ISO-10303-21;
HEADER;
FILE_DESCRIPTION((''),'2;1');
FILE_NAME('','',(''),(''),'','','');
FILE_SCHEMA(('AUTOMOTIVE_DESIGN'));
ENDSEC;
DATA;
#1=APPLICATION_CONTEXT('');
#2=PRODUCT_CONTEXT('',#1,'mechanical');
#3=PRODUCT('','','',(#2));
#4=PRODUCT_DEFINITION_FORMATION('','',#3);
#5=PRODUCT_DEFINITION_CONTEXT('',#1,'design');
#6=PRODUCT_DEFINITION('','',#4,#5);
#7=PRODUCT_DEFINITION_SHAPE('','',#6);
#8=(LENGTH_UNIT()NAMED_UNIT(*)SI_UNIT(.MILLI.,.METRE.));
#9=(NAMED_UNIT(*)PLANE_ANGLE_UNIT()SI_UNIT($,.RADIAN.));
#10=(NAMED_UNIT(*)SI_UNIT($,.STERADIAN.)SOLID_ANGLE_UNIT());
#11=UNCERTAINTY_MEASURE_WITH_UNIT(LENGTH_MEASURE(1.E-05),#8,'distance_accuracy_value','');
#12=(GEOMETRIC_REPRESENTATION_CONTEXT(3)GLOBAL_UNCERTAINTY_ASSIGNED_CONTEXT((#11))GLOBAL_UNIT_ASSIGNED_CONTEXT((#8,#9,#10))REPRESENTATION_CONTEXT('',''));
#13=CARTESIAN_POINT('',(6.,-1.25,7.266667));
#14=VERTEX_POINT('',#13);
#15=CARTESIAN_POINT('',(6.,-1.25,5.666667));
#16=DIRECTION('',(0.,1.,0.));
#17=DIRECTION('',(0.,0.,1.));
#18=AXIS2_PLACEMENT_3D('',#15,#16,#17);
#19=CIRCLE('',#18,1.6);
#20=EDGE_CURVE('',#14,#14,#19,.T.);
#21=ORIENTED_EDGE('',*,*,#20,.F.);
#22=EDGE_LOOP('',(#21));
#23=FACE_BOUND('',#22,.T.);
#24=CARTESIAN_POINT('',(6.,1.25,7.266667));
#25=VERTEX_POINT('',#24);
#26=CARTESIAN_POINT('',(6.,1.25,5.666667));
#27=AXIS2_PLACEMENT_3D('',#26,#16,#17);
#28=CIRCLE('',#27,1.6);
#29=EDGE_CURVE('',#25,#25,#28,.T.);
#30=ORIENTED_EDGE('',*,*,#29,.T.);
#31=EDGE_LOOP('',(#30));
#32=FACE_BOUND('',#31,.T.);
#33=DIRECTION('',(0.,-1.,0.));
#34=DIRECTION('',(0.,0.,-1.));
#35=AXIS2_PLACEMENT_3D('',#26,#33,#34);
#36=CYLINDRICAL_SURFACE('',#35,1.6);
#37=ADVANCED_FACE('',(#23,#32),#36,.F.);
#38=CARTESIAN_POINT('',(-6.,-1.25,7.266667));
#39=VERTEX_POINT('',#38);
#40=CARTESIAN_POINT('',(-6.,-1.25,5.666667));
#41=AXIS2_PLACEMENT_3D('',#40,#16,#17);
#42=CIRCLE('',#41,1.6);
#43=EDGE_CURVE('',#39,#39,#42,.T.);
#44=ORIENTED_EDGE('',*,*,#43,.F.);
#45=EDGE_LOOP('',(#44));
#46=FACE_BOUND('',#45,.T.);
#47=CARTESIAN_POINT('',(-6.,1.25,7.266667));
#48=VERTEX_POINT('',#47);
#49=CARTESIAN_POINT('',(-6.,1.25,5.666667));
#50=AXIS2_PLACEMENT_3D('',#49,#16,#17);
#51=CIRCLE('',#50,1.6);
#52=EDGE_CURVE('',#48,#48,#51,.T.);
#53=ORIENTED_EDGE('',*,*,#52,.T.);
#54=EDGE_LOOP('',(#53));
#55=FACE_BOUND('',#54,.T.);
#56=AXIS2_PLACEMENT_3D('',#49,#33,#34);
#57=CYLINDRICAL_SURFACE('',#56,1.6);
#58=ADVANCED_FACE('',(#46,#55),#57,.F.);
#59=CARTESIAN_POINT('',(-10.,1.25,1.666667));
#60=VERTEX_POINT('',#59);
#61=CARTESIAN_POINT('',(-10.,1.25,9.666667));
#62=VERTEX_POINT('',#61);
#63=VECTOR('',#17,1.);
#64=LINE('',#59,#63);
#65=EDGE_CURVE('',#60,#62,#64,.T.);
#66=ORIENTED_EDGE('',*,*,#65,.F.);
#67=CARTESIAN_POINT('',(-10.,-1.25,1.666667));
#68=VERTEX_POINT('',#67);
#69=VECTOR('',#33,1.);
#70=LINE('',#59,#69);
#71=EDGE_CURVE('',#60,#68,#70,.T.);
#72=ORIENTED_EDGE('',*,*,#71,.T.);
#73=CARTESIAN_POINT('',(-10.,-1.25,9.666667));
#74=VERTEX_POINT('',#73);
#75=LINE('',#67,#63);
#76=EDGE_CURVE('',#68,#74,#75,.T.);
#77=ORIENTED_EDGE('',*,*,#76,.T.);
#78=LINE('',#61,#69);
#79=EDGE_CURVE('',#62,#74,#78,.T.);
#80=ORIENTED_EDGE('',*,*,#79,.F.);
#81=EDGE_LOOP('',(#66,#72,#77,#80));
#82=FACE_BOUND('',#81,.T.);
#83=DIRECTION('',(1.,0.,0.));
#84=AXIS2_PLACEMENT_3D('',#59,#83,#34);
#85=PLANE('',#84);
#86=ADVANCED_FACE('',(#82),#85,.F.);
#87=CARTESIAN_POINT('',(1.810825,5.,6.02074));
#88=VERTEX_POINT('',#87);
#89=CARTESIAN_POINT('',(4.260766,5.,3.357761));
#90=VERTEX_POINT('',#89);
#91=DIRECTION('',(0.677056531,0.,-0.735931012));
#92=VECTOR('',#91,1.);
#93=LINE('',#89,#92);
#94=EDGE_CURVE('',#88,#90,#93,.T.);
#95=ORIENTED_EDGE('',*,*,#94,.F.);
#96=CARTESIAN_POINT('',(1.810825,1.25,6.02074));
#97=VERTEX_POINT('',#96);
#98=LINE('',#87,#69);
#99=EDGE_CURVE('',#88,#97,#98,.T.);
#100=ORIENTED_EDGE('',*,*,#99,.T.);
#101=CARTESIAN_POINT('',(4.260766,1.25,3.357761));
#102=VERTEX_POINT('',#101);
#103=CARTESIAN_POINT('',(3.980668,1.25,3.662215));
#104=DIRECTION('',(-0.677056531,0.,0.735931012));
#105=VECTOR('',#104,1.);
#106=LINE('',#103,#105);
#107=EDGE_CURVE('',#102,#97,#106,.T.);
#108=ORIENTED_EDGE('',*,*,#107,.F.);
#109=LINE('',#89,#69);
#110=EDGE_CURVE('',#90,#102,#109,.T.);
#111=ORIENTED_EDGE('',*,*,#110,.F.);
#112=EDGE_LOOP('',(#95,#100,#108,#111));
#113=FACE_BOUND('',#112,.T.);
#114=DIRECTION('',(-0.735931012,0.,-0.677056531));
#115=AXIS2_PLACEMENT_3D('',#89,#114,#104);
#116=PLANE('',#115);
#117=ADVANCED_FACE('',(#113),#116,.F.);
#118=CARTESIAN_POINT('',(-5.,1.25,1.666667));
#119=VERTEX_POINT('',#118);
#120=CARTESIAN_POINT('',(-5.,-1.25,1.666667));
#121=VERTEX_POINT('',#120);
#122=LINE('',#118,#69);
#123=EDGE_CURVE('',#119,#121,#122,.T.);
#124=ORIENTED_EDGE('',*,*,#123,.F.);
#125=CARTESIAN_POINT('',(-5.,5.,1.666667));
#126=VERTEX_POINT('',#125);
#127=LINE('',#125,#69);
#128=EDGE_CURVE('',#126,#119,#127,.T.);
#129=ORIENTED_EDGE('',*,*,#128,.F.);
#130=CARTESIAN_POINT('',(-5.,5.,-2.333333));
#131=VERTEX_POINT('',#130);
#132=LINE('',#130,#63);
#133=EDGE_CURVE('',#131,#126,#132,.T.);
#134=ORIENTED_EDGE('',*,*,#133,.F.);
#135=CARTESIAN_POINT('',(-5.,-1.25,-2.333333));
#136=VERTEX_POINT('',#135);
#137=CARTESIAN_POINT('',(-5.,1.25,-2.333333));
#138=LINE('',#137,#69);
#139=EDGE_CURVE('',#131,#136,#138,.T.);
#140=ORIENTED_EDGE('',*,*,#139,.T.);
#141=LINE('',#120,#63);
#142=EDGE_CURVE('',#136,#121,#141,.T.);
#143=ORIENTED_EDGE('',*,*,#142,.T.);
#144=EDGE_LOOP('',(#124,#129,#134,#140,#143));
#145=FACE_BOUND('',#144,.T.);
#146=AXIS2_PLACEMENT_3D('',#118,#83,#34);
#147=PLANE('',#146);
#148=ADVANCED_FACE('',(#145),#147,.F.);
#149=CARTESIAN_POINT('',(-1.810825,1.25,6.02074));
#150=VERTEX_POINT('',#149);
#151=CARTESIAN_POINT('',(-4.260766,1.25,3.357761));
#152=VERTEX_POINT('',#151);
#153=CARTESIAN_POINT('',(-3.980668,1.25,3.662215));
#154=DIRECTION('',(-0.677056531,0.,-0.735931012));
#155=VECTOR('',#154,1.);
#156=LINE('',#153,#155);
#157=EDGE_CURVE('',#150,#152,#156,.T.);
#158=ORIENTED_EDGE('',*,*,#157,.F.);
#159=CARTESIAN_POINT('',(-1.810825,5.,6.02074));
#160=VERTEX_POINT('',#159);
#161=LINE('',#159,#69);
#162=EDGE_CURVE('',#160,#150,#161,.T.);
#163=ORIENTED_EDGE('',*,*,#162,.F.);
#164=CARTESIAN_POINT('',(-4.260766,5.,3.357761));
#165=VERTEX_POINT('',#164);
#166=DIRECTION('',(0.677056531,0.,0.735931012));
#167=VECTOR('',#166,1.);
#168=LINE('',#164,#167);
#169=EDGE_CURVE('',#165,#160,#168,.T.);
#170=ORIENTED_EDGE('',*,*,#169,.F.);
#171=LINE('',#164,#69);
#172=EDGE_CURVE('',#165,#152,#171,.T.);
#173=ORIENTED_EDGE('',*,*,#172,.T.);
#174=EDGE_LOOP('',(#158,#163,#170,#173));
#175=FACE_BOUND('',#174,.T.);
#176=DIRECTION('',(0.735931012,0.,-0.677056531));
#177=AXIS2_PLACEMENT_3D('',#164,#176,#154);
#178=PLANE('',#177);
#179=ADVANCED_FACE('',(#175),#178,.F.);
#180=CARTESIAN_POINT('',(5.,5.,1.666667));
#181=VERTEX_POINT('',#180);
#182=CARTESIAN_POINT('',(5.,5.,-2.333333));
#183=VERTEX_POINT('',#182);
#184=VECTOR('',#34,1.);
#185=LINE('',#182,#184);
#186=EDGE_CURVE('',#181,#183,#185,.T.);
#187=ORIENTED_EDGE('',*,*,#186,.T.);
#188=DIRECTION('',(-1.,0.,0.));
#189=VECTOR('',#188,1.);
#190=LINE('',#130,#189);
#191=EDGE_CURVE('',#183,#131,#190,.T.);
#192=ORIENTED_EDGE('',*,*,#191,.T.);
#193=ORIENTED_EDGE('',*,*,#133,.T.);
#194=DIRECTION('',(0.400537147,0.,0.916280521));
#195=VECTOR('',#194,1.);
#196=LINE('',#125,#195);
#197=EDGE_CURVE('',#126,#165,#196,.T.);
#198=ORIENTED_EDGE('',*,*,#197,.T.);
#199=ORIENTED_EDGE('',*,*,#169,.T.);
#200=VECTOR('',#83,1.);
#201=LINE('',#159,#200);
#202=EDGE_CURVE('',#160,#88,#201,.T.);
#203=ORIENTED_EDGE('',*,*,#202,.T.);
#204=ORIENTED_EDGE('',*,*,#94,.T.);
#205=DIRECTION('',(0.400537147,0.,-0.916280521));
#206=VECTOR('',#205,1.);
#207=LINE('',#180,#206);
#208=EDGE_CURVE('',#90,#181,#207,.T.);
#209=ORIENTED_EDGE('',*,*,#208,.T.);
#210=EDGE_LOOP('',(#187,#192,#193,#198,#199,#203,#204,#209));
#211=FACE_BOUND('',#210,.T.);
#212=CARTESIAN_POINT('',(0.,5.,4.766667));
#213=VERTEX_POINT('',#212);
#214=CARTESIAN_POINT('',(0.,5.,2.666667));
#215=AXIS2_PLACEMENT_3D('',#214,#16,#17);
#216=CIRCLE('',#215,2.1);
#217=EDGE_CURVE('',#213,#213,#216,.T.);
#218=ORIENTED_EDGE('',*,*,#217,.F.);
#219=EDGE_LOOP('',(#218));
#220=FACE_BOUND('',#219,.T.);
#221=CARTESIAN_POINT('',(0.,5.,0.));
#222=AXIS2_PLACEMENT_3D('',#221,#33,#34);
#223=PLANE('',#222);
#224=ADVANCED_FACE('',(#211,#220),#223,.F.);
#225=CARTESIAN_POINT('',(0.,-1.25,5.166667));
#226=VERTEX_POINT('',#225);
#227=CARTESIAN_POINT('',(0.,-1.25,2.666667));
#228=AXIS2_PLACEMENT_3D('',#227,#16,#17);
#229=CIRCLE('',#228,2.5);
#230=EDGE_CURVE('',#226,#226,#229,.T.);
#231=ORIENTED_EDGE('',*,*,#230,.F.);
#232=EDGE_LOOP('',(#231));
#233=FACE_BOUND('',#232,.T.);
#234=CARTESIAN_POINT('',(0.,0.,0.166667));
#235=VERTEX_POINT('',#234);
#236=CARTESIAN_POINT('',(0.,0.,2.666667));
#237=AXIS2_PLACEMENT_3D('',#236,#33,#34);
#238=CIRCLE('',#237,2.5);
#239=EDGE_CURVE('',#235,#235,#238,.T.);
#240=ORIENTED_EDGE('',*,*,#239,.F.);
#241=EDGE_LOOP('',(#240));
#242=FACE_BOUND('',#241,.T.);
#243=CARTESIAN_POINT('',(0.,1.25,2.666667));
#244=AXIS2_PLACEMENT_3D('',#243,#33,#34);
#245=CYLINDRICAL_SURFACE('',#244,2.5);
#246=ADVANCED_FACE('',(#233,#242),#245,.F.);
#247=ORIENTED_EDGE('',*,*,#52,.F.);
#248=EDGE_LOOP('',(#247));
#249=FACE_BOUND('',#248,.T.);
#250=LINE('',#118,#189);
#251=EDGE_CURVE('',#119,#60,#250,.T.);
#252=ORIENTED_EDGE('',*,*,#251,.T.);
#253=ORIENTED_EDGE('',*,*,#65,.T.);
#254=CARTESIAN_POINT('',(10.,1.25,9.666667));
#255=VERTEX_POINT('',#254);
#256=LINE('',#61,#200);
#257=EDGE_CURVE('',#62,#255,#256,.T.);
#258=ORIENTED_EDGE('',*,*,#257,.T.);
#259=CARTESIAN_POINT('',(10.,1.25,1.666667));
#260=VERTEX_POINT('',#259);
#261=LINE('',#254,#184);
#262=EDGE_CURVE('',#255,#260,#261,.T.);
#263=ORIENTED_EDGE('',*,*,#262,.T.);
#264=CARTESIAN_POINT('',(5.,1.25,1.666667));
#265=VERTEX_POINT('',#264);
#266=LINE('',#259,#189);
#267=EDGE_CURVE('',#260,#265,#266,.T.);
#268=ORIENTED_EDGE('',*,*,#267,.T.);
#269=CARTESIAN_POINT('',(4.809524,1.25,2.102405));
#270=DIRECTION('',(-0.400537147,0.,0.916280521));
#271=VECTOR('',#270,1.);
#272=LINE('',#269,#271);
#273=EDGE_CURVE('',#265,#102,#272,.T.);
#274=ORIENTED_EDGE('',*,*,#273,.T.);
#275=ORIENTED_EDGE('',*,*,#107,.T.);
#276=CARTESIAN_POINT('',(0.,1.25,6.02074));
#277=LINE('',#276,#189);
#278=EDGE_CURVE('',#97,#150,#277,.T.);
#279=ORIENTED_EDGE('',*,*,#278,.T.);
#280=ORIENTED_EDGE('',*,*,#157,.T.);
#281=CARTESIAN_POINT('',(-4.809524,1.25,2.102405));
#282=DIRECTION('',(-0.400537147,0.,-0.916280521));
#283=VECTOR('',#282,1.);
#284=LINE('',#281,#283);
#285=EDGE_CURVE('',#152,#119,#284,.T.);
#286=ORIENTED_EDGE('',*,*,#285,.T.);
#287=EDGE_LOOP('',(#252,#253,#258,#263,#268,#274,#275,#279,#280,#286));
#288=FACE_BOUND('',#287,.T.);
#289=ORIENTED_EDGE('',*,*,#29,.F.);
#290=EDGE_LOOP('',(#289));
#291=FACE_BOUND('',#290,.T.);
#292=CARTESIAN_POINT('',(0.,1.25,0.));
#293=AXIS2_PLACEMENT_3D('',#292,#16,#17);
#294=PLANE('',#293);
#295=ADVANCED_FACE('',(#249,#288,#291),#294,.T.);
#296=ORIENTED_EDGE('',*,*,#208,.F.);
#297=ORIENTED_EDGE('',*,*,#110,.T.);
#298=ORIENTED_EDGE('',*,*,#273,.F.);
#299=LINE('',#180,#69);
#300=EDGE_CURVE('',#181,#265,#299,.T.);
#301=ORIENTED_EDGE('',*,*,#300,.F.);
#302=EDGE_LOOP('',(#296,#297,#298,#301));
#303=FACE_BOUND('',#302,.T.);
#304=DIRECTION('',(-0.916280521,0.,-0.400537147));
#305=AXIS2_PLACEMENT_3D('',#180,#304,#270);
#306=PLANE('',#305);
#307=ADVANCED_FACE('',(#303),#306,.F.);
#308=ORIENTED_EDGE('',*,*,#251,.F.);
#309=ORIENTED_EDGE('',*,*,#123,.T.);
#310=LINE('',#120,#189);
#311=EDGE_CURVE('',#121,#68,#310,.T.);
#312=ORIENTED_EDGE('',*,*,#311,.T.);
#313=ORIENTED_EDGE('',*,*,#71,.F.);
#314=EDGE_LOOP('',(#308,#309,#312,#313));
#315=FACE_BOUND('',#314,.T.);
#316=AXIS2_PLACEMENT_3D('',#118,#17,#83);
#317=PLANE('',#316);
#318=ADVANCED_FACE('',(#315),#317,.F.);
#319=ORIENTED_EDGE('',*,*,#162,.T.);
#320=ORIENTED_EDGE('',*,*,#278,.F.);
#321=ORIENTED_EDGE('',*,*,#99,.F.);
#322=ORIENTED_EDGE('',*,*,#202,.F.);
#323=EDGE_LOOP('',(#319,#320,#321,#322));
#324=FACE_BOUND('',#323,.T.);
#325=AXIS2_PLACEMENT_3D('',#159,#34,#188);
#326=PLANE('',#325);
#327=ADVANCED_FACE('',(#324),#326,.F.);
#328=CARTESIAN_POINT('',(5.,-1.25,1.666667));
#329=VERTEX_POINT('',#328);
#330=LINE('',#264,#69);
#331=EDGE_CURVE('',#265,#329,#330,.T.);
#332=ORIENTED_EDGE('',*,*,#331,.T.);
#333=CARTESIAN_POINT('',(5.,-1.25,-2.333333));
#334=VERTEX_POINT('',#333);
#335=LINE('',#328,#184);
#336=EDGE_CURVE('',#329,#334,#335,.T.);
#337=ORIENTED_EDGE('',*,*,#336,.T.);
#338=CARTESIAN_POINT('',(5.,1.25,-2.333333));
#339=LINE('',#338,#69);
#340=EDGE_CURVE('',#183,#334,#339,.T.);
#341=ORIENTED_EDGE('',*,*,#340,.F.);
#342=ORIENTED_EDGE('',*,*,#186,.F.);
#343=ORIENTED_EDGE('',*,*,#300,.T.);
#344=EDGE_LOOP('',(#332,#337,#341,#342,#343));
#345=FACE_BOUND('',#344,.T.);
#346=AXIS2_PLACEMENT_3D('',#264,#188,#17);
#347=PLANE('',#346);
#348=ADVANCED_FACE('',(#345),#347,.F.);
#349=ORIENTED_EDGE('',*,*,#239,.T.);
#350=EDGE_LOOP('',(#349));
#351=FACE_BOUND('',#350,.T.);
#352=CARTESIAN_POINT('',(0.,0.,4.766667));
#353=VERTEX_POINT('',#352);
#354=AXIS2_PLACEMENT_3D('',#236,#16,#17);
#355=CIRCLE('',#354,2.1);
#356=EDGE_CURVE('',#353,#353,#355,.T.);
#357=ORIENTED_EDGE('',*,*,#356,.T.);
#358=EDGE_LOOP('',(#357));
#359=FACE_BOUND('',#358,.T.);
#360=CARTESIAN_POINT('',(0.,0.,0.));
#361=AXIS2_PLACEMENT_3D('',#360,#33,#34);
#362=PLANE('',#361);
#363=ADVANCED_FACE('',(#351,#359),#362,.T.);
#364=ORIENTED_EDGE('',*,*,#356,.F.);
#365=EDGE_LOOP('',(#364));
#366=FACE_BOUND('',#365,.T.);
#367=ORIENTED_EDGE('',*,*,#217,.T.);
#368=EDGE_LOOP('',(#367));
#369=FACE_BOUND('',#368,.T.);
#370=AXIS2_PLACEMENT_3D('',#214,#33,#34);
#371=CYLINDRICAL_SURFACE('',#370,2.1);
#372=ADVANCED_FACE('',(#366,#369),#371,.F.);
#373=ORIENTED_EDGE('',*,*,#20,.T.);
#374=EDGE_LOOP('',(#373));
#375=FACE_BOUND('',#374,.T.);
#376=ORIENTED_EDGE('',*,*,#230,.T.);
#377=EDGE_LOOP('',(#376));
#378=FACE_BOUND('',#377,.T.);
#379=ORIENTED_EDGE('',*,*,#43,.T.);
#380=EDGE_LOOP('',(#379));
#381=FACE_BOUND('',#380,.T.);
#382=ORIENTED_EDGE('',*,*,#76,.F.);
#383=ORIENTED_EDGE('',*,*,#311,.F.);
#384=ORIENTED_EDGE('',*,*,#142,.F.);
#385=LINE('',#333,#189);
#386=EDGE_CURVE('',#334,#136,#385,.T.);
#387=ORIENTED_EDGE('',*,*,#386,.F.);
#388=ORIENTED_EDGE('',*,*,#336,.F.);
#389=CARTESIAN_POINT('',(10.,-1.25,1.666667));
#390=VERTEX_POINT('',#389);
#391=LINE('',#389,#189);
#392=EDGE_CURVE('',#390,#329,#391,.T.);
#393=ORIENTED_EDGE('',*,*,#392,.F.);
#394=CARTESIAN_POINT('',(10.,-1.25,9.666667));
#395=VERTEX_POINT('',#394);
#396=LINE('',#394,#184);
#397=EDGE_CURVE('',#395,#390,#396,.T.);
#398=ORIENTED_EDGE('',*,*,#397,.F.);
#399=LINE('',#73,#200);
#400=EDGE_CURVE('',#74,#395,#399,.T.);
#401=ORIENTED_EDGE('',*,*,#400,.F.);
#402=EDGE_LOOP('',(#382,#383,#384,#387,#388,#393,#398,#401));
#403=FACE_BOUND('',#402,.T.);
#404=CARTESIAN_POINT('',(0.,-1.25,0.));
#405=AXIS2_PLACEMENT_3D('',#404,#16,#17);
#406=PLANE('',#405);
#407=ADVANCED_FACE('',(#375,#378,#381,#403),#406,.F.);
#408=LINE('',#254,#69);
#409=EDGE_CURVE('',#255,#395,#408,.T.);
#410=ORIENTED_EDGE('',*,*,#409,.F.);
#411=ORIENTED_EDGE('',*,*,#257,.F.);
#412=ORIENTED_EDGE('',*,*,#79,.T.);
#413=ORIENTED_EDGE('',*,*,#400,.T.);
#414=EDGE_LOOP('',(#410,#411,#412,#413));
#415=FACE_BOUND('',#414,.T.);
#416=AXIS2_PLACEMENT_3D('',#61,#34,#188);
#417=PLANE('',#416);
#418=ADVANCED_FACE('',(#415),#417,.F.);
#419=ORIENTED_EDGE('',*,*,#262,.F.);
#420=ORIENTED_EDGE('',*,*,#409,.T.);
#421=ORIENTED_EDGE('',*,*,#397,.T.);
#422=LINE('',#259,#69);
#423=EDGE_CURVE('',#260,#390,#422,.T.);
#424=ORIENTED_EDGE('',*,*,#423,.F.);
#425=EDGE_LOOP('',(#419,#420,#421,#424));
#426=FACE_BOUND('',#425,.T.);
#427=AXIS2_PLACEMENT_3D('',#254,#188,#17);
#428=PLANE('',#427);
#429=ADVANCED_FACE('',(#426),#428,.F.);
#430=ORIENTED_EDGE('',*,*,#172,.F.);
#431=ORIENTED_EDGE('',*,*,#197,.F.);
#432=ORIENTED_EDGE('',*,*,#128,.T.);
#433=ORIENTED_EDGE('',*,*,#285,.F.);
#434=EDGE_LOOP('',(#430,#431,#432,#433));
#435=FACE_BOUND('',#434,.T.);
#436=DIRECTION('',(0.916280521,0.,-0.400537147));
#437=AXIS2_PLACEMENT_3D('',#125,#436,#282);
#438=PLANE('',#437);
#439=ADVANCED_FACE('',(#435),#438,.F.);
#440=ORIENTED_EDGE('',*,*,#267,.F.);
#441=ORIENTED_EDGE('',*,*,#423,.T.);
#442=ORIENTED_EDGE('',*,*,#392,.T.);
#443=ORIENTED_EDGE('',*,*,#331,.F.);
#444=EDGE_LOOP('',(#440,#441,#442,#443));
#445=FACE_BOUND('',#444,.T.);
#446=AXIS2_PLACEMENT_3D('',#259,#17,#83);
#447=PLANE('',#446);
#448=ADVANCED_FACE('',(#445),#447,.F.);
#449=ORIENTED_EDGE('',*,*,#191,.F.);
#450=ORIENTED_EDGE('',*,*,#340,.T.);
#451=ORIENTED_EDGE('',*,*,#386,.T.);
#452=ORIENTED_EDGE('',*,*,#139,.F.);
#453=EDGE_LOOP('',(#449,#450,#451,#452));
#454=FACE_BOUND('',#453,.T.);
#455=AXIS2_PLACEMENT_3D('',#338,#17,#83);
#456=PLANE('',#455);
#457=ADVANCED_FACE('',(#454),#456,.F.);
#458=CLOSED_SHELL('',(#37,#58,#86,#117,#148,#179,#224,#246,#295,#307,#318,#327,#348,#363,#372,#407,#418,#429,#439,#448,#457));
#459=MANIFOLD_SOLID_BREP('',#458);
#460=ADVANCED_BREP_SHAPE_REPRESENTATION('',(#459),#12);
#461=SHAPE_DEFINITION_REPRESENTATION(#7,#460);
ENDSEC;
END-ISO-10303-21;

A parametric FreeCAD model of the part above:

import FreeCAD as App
import Part
import Sketcher


def add_polygon(sketch, points):
    """Adds a closed chain of lines whose ends are joined by coincident constraints."""
    first, n = sketch.GeometryCount, len(points)
    for a, b in zip(points, points[1:] + points[:1]):
        sketch.addGeometry(Part.LineSegment(App.Vector(*a, 0), App.Vector(*b, 0)), False)
    for i in range(n):
        sketch.addConstraint(Sketcher.Constraint("Coincident", first + i, 2, first + (i + 1) % n, 1))

doc = App.newDocument("Part")
body = doc.addObject("PartDesign::Body", "Body")

# Sketch on XZ plane
sketch1 = body.newObject("Sketcher::SketchObject", "Sketch")
sketch1.AttachmentSupport = (doc.getObject("XZ_Plane"), [""])
sketch1.MapMode = "FlatFace"
add_polygon(sketch1, [(-5, 1.7), (-10, 1.7), (-10, 9.7), (10, 9.7), (10, 1.7), (5, 1.7), (5, -2.3), (-5, -2.3)])  # lines 0-7
sketch1.addGeometry(Part.Circle(App.Vector(-6, 5.7, 0), App.Vector(0, 0, 1), 1.6), False)  # 8
sketch1.addGeometry(Part.Circle(App.Vector(6, 5.7, 0), App.Vector(0, 0, 1), 1.6), False)  # 9
sketch1.addGeometry(Part.Circle(App.Vector(0, 2.7, 0), App.Vector(0, 0, 1), 2.5), False)  # 10
sketch1.addConstraint(Sketcher.Constraint("Horizontal", 0))
sketch1.addConstraint(Sketcher.Constraint("Vertical", 1))
sketch1.addConstraint(Sketcher.Constraint("Horizontal", 2))
sketch1.addConstraint(Sketcher.Constraint("Vertical", 3))
sketch1.addConstraint(Sketcher.Constraint("Horizontal", 4))
sketch1.addConstraint(Sketcher.Constraint("Vertical", 5))
sketch1.addConstraint(Sketcher.Constraint("Horizontal", 6))
sketch1.addConstraint(Sketcher.Constraint("Vertical", 7))
sketch1.addConstraint(Sketcher.Constraint("Equal", 8, 9))
sketch1.addConstraint(Sketcher.Constraint("Symmetric", 8, 3, 9, 3, -2))
sketch1.addConstraint(Sketcher.Constraint("Symmetric", 0, 2, 3, 2, -2))
sketch1.addConstraint(Sketcher.Constraint("PointOnObject", 10, 3, -2))
sketch1.addConstraint(Sketcher.Constraint("Equal", 0, 4))
sketch1.addConstraint(Sketcher.Constraint("Diameter", 10, 5.0))
sketch1.addConstraint(Sketcher.Constraint("Diameter", 8, 3.2))
sketch1.addConstraint(Sketcher.Constraint("DistanceX", 0, 2, 0, 1, 5.0))
sketch1.addConstraint(Sketcher.Constraint("DistanceX", 2, 1, 2, 2, 20.0))
sketch1.addConstraint(Sketcher.Constraint("DistanceY", 1, 1, 1, 2, 8.0))
sketch1.addConstraint(Sketcher.Constraint("DistanceY", 5, 2, 5, 1, 4.0))
sketch1.addConstraint(Sketcher.Constraint("DistanceX", 8, 3, -1, 1, 6.0))
sketch1.addConstraint(Sketcher.Constraint("DistanceY", 10, 3, 8, 3, 3.0))
sketch1.addConstraint(Sketcher.Constraint("DistanceY", 0, 2, 8, 3, 4.0))
sketch1.addConstraint(Sketcher.Constraint("DistanceY", -1, 1, 8, 3, 5.666667))
pad1 = body.newObject("PartDesign::Pad", "Pad")
pad1.Profile = sketch1
pad1.Length = 2.5
pad1.Midplane = True

# Sketch on XZ plane
sketch2 = body.newObject("Sketcher::SketchObject", "Sketch001")
sketch2.AttachmentSupport = (doc.getObject("XZ_Plane"), [""])
sketch2.MapMode = "FlatFace"
add_polygon(sketch2, [(-5, -2.3), (-5, 1.7), (-4.3, 3.4), (-1.8, 6), (1.8, 6), (4.3, 3.4), (5, 1.7), (5, -2.3)])  # lines 0-7
sketch2.addGeometry(Part.Circle(App.Vector(0, 2.7, 0), App.Vector(0, 0, 1), 2.1), False)  # 8
sketch2.addConstraint(Sketcher.Constraint("Vertical", 0))
sketch2.addConstraint(Sketcher.Constraint("Horizontal", 3))
sketch2.addConstraint(Sketcher.Constraint("Vertical", 6))
sketch2.addConstraint(Sketcher.Constraint("Horizontal", 7))
sketch2.addConstraint(Sketcher.Constraint("Symmetric", 1, 2, 4, 2, -2))
sketch2.addConstraint(Sketcher.Constraint("Symmetric", 0, 2, 5, 2, -2))
sketch2.addConstraint(Sketcher.Constraint("PointOnObject", 8, 3, -2))
sketch2.addConstraint(Sketcher.Constraint("Equal", 2, 4))
sketch2.addConstraint(Sketcher.Constraint("Diameter", 8, 4.2))
sketch2.addConstraint(Sketcher.Constraint("DistanceX", 7, 2, 7, 1, 10.0))
sketch2.addConstraint(Sketcher.Constraint("DistanceY", 0, 1, 0, 2, 4.0))
sketch2.addConstraint(Sketcher.Constraint("DistanceY", 0, 2, 8, 3, 1.0))
sketch2.addConstraint(Sketcher.Constraint("DistanceX", 3, 1, 3, 2, 3.621651))
sketch2.addConstraint(Sketcher.Constraint("DistanceY", -1, 1, 1, 2, 3.357761))
sketch2.addConstraint(Sketcher.Constraint("DistanceY", -1, 1, 2, 2, 6.02074))
sketch2.addConstraint(Sketcher.Constraint("DistanceX", 1, 2, 2, 2, 2.44994))
sketch2.addConstraint(Sketcher.Constraint("Distance", 1, 1.845608))
pad2 = body.newObject("PartDesign::Pad", "Pad001")
pad2.Profile = sketch2
pad2.Length = 5
pad2.Reversed = True

doc.recompute()
